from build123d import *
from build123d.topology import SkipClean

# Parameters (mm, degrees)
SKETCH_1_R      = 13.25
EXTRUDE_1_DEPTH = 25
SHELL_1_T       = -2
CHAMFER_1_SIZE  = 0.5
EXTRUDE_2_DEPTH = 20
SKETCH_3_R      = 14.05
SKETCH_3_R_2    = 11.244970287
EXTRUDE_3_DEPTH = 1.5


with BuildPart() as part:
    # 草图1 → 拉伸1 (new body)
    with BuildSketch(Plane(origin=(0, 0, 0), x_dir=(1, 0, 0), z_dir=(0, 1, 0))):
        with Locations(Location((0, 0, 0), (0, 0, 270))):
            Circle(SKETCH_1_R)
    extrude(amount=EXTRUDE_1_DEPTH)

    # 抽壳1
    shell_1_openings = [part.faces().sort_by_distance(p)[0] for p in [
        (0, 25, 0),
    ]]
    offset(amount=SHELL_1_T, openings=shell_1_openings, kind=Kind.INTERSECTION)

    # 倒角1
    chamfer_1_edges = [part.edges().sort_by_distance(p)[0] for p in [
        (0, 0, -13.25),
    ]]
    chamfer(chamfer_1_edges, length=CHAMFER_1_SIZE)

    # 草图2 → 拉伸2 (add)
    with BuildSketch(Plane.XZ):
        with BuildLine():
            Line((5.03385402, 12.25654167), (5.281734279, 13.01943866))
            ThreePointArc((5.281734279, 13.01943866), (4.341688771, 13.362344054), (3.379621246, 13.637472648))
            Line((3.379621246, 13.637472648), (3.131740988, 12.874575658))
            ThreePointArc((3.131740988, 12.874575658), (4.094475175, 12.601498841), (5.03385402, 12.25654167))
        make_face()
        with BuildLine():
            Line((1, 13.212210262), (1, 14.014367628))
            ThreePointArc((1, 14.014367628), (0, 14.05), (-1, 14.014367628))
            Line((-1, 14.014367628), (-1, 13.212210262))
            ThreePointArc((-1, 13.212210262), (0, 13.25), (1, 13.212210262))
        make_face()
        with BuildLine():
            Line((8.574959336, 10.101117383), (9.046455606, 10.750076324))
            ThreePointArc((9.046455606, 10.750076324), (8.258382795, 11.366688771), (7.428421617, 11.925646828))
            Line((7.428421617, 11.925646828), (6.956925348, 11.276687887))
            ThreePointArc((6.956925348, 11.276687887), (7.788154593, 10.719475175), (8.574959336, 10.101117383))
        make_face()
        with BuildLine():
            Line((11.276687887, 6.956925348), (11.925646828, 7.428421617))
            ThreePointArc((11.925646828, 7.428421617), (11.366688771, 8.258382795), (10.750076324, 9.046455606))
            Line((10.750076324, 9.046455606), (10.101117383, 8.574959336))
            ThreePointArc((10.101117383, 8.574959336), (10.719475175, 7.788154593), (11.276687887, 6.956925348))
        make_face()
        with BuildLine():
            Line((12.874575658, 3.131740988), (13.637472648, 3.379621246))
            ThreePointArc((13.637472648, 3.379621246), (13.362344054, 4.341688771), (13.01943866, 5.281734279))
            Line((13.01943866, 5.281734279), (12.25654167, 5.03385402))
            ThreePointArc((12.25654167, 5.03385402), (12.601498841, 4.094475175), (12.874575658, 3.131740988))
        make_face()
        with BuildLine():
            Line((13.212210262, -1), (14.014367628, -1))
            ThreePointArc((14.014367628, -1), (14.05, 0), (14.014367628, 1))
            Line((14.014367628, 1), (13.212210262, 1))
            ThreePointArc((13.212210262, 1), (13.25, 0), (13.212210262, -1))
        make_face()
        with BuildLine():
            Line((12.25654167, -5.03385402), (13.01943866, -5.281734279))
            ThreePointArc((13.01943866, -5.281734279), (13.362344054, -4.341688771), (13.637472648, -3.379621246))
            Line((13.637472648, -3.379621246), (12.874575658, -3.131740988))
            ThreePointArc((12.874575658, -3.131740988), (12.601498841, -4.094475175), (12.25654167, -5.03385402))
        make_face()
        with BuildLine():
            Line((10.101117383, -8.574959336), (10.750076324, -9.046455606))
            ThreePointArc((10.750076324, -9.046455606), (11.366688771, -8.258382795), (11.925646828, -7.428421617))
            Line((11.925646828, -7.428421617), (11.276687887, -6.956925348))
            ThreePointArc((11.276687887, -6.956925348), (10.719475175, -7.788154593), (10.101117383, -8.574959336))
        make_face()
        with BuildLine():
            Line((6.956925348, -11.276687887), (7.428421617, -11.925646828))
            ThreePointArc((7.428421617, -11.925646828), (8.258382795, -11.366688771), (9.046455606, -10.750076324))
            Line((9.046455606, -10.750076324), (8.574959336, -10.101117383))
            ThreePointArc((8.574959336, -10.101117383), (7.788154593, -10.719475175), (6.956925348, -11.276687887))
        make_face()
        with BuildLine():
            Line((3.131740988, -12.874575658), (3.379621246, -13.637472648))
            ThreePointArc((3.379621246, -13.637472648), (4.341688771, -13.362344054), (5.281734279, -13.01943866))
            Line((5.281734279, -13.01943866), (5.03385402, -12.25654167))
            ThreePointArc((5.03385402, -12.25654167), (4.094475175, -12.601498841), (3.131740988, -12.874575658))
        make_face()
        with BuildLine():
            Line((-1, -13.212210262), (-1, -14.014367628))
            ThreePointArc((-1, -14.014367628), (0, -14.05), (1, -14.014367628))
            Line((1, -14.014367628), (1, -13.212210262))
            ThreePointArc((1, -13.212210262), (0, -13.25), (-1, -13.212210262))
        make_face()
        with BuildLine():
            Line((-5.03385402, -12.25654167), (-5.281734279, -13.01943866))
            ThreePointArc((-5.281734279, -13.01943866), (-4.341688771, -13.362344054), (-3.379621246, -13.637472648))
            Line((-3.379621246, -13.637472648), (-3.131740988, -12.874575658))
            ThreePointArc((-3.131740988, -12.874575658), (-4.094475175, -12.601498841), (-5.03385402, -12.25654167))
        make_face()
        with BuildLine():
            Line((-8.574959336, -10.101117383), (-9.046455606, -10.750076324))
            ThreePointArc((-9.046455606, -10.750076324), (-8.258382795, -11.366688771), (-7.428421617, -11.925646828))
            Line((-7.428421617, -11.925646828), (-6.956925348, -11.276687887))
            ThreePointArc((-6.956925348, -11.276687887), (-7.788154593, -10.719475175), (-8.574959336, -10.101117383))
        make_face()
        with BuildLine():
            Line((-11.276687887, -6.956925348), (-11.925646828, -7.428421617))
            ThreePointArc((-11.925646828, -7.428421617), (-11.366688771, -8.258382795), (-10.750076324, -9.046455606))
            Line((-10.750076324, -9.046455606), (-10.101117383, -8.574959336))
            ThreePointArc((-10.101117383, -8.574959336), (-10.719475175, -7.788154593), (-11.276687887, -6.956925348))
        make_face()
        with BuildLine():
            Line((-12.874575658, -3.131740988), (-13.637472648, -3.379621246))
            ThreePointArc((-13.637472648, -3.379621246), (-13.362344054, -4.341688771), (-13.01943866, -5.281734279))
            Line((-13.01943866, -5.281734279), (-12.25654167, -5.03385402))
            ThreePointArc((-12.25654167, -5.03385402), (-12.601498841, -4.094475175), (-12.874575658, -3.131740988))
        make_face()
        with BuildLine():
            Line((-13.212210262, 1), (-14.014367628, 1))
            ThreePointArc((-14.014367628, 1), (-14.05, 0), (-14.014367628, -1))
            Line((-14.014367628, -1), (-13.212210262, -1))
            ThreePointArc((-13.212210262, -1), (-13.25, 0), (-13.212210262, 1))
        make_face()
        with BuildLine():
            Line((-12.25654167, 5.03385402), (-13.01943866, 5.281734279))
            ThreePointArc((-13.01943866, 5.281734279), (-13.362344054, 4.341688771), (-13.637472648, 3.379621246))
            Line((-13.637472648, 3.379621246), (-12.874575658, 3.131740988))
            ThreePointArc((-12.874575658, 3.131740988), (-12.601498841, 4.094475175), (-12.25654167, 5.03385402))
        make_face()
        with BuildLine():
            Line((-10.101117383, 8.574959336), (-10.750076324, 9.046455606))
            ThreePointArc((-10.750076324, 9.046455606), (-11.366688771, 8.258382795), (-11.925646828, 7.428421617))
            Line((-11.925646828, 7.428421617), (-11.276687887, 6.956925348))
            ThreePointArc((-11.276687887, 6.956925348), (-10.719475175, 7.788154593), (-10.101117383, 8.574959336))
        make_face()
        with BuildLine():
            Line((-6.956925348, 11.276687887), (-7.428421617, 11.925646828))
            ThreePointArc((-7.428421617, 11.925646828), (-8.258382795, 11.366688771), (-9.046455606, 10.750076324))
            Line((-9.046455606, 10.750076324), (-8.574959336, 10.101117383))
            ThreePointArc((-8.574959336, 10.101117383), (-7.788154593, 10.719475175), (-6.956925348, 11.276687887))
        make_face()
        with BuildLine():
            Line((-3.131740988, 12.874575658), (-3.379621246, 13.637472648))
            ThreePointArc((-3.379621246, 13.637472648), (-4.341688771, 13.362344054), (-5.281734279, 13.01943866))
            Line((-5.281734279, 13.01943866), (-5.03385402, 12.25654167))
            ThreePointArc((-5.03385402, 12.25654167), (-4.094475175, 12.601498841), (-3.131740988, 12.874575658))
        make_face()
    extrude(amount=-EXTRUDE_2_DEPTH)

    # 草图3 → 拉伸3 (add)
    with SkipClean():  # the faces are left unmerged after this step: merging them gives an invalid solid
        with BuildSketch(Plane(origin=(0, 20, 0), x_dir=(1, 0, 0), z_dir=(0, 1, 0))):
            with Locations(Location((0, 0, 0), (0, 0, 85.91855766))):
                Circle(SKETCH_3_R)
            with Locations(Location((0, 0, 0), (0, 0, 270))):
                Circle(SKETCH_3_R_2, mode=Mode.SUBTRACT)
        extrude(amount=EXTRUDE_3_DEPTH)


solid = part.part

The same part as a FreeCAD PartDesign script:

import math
import FreeCAD as App
import Part
import Sketcher
Q = App.Units.Quantity


def edges_at(feature, points):
    """Names of the edges that pass closest to the given points."""
    edges = feature.Shape.Edges
    near = lambda p: min(range(len(edges)), key=lambda i: edges[i].distToShape(Part.Vertex(*p))[0])
    return sorted({f"Edge{near(p) + 1}" for p in points})


def faces_at(feature, points):
    """Names of the faces that lie closest to the given points."""
    faces = feature.Shape.Faces
    near = lambda p: min(range(len(faces)), key=lambda i: faces[i].distToShape(Part.Vertex(*p))[0])
    return sorted({f"Face{near(p) + 1}" for p in points})

doc = App.newDocument("Part")
params = doc.addObject("Spreadsheet::Sheet", "Params")
for row, (alias, value) in enumerate([
    ("sketch1_diameter", "26.5 mm"),
    ("pad1_length", "25 mm"),
    ("thickness_wall", "2 mm"),
    ("chamfer_size", "0.5 mm"),
    ("sketch2_radius", "14.05 mm"),
    ("sketch2_radius2", "13.25 mm"),
    ("pad2_length", "20 mm"),
    ("sketch3_diameter", "28.1 mm"),
    ("pad3_length", "1.5 mm"),
], start=1):
    params.set(f"A{row}", alias)
    params.set(f"B{row}", "=" + value)
    params.setAlias(f"B{row}", alias)

body = doc.addObject("PartDesign::Body", "Body")

sketch1 = body.newObject("Sketcher::SketchObject", "Sketch")
sketch1.AttachmentSupport = (doc.getObject("XZ_Plane"), [""])
sketch1.MapMode = "FlatFace"
sketch1.addGeometry(Part.Circle(App.Vector(0, 0, 0), App.Vector(0, 0, 1), 13), False)
sketch1.addConstraint([
    Sketcher.Constraint("Coincident", 0, 3, -1, 1),
    Sketcher.Constraint("Diameter", 0, 26.5),
])
sketch1.setExpression("Constraints[1]", "Params.sketch1_diameter")
pad1 = body.newObject("PartDesign::Pad", "Pad")
pad1.Profile = sketch1
pad1.setExpression("Length", "Params.pad1_length")
pad1.Reversed = True
doc.recompute()

thickness = body.newObject("PartDesign::Thickness", "Thickness")
thickness.Base = (pad1, faces_at(pad1, [(0, 25, 0)]))
thickness.setExpression("Value", "Params.thickness_wall")
thickness.Reversed = True
thickness.Join = "Intersection"
doc.recompute()

chamfer = body.newObject("PartDesign::Chamfer", "Chamfer")
chamfer.Base = (thickness, edges_at(thickness, [(0, 0, -13.25)]))
chamfer.setExpression("Size", "Params.chamfer_size")

sketch2 = body.newObject("Sketcher::SketchObject", "Sketch001")
sketch2.AttachmentSupport = (doc.getObject("XZ_Plane"), [""])
sketch2.MapMode = "FlatFace"
sketch2.addGeometry([
    Part.LineSegment(App.Vector(5, 12.3, 0), App.Vector(5.3, 13, 0)),
    Part.ArcOfCircle(Part.Circle(App.Vector(0, 0, 0), App.Vector(0, 0, 1), 14.1), math.radians(67.92), math.radians(76.08)),
    Part.LineSegment(App.Vector(3.4, 13.6, 0), App.Vector(3.1, 12.9, 0)),
    Part.ArcOfCircle(Part.Circle(App.Vector(0, 0, 0), App.Vector(0, 0, 1), 13.2), math.radians(67.67), math.radians(76.33)),
    Part.LineSegment(App.Vector(1, 13.2, 0), App.Vector(1, 14, 0)),
    Part.ArcOfCircle(Part.Circle(App.Vector(0, 0, 0), App.Vector(0, 0, 1), 14.1), math.radians(85.92), math.radians(94.08)),
    Part.LineSegment(App.Vector(-1, 14, 0), App.Vector(-1, 13.2, 0)),
    Part.ArcOfCircle(Part.Circle(App.Vector(0, 0, 0), App.Vector(0, 0, 1), 13.3), math.radians(85.67), math.radians(94.33)),
    Part.LineSegment(App.Vector(8.6, 10.1, 0), App.Vector(9, 10.8, 0)),
    Part.ArcOfCircle(Part.Circle(App.Vector(0, 0, 0), App.Vector(0, 0, 1), 14), math.radians(49.92), math.radians(58.08)),
    Part.LineSegment(App.Vector(7.4, 11.9, 0), App.Vector(7, 11.3, 0)),
    Part.ArcOfCircle(Part.Circle(App.Vector(0, 0, 0), App.Vector(0, 0, 1), 13.3), math.radians(49.67), math.radians(58.33)),
    Part.LineSegment(App.Vector(11.3, 7, 0), App.Vector(11.9, 7.4, 0)),
    Part.ArcOfCircle(Part.Circle(App.Vector(0, 0, 0), App.Vector(0, 0, 1), 14), math.radians(31.92), math.radians(40.08)),
    Part.LineSegment(App.Vector(10.8, 9, 0), App.Vector(10.1, 8.6, 0)),
    Part.ArcOfCircle(Part.Circle(App.Vector(0, 0, 0), App.Vector(0, 0, 1), 13.3), math.radians(31.67), math.radians(40.33)),
    Part.LineSegment(App.Vector(12.9, 3.1, 0), App.Vector(13.6, 3.4, 0)),
    Part.ArcOfCircle(Part.Circle(App.Vector(0, 0, 0), App.Vector(0, 0, 1), 14.1), math.radians(13.92), math.radians(22.08)),
    Part.LineSegment(App.Vector(13, 5.3, 0), App.Vector(12.3, 5, 0)),
    Part.ArcOfCircle(Part.Circle(App.Vector(0, 0, 0), App.Vector(0, 0, 1), 13.2), math.radians(13.67), math.radians(22.33)),
    Part.LineSegment(App.Vector(13.2, -1, 0), App.Vector(14, -1, 0)),
    Part.ArcOfCircle(Part.Circle(App.Vector(0, 0, 0), App.Vector(0, 0, 1), 14.1), math.radians(-4.08), math.radians(4.08)),
    Part.LineSegment(App.Vector(14, 1, 0), App.Vector(13.2, 1, 0)),
    Part.ArcOfCircle(Part.Circle(App.Vector(0, 0, 0), App.Vector(0, 0, 1), 13.3), math.radians(-4.33), math.radians(4.33)),
    Part.LineSegment(App.Vector(12.3, -5, 0), App.Vector(13, -5.3, 0)),
    Part.ArcOfCircle(Part.Circle(App.Vector(0, 0, 0), App.Vector(0, 0, 1), 14.1), math.radians(-22.08), math.radians(-13.92)),
    Part.LineSegment(App.Vector(13.6, -3.4, 0), App.Vector(12.9, -3.1, 0)),
    Part.ArcOfCircle(Part.Circle(App.Vector(0, 0, 0), App.Vector(0, 0, 1), 13.2), math.radians(-22.33), math.radians(-13.67)),
    Part.LineSegment(App.Vector(10.1, -8.6, 0), App.Vector(10.8, -9, 0)),
    Part.ArcOfCircle(Part.Circle(App.Vector(0, 0, 0), App.Vector(0, 0, 1), 14), math.radians(-40.08), math.radians(-31.92)),
    Part.LineSegment(App.Vector(11.9, -7.4, 0), App.Vector(11.3, -7, 0)),
    Part.ArcOfCircle(Part.Circle(App.Vector(0, 0, 0), App.Vector(0, 0, 1), 13.3), math.radians(-40.33), math.radians(-31.67)),
    Part.LineSegment(App.Vector(7, -11.3, 0), App.Vector(7.4, -11.9, 0)),
    Part.ArcOfCircle(Part.Circle(App.Vector(0, 0, 0), App.Vector(0, 0, 1), 14), math.radians(-58.08), math.radians(-49.92)),
    Part.LineSegment(App.Vector(9, -10.8, 0), App.Vector(8.6, -10.1, 0)),
    Part.ArcOfCircle(Part.Circle(App.Vector(0, 0, 0), App.Vector(0, 0, 1), 13.3), math.radians(-58.33), math.radians(-49.67)),
    Part.LineSegment(App.Vector(3.1, -12.9, 0), App.Vector(3.4, -13.6, 0)),
    Part.ArcOfCircle(Part.Circle(App.Vector(0, 0, 0), App.Vector(0, 0, 1), 14.1), math.radians(-76.08), math.radians(-67.92)),
    Part.LineSegment(App.Vector(5.3, -13, 0), App.Vector(5, -12.3, 0)),
    Part.ArcOfCircle(Part.Circle(App.Vector(0, 0, 0), App.Vector(0, 0, 1), 13.2), math.radians(-76.33), math.radians(-67.67)),
    Part.LineSegment(App.Vector(-1, -13.2, 0), App.Vector(-1, -14, 0)),
    Part.ArcOfCircle(Part.Circle(App.Vector(0, 0, 0), App.Vector(0, 0, 1), 14.1), math.radians(-94.08), math.radians(-85.92)),
    Part.LineSegment(App.Vector(1, -14, 0), App.Vector(1, -13.2, 0)),
    Part.ArcOfCircle(Part.Circle(App.Vector(0, 0, 0), App.Vector(0, 0, 1), 13.3), math.radians(-94.33), math.radians(-85.67)),
    Part.LineSegment(App.Vector(-5, -12.3, 0), App.Vector(-5.3, -13, 0)),
    Part.ArcOfCircle(Part.Circle(App.Vector(0, 0, 0), App.Vector(0, 0, 1), 14.1), math.radians(-112.08), math.radians(-103.92)),
    Part.LineSegment(App.Vector(-3.4, -13.6, 0), App.Vector(-3.1, -12.9, 0)),
    Part.ArcOfCircle(Part.Circle(App.Vector(0, 0, 0), App.Vector(0, 0, 1), 13.2), math.radians(-112.33), math.radians(-103.67)),
    Part.LineSegment(App.Vector(-8.6, -10.1, 0), App.Vector(-9, -10.8, 0)),
    Part.ArcOfCircle(Part.Circle(App.Vector(0, 0, 0), App.Vector(0, 0, 1), 14), math.radians(-130.08), math.radians(-121.92)),
    Part.LineSegment(App.Vector(-7.4, -11.9, 0), App.Vector(-7, -11.3, 0)),
    Part.ArcOfCircle(Part.Circle(App.Vector(0, 0, 0), App.Vector(0, 0, 1), 13.3), math.radians(-130.33), math.radians(-121.67)),
    Part.LineSegment(App.Vector(-11.3, -7, 0), App.Vector(-11.9, -7.4, 0)),
    Part.ArcOfCircle(Part.Circle(App.Vector(0, 0, 0), App.Vector(0, 0, 1), 14), math.radians(-148.08), math.radians(-139.92)),
    Part.LineSegment(App.Vector(-10.8, -9, 0), App.Vector(-10.1, -8.6, 0)),
    Part.ArcOfCircle(Part.Circle(App.Vector(0, 0, 0), App.Vector(0, 0, 1), 13.3), math.radians(-148.33), math.radians(-139.67)),
    Part.LineSegment(App.Vector(-12.9, -3.1, 0), App.Vector(-13.6, -3.4, 0)),
    Part.ArcOfCircle(Part.Circle(App.Vector(0, 0, 0), App.Vector(0, 0, 1), 14.1), math.radians(-166.08), math.radians(-157.92)),
    Part.LineSegment(App.Vector(-13, -5.3, 0), App.Vector(-12.3, -5, 0)),
    Part.ArcOfCircle(Part.Circle(App.Vector(0, 0, 0), App.Vector(0, 0, 1), 13.2), math.radians(-166.33), math.radians(-157.67)),
    Part.LineSegment(App.Vector(-13.2, 1, 0), App.Vector(-14, 1, 0)),
    Part.ArcOfCircle(Part.Circle(App.Vector(0, 0, 0), App.Vector(0, 0, 1), 14.1), math.radians(175.92), math.radians(184.08)),
    Part.LineSegment(App.Vector(-14, -1, 0), App.Vector(-13.2, -1, 0)),
    Part.ArcOfCircle(Part.Circle(App.Vector(0, 0, 0), App.Vector(0, 0, 1), 13.3), math.radians(175.67), math.radians(184.33)),
    Part.LineSegment(App.Vector(-12.3, 5, 0), App.Vector(-13, 5.3, 0)),
    Part.ArcOfCircle(Part.Circle(App.Vector(0, 0, 0), App.Vector(0, 0, 1), 14.1), math.radians(157.92), math.radians(166.08)),
    Part.LineSegment(App.Vector(-13.6, 3.4, 0), App.Vector(-12.9, 3.1, 0)),
    Part.ArcOfCircle(Part.Circle(App.Vector(0, 0, 0), App.Vector(0, 0, 1), 13.2), math.radians(157.67), math.radians(166.33)),
    Part.LineSegment(App.Vector(-10.1, 8.6, 0), App.Vector(-10.8, 9, 0)),
    Part.ArcOfCircle(Part.Circle(App.Vector(0, 0, 0), App.Vector(0, 0, 1), 14), math.radians(139.92), math.radians(148.08)),
    Part.LineSegment(App.Vector(-11.9, 7.4, 0), App.Vector(-11.3, 7, 0)),
    Part.ArcOfCircle(Part.Circle(App.Vector(0, 0, 0), App.Vector(0, 0, 1), 13.3), math.radians(139.67), math.radians(148.33)),
    Part.LineSegment(App.Vector(-7, 11.3, 0), App.Vector(-7.4, 11.9, 0)),
    Part.ArcOfCircle(Part.Circle(App.Vector(0, 0, 0), App.Vector(0, 0, 1), 14), math.radians(121.92), math.radians(130.08)),
    Part.LineSegment(App.Vector(-9, 10.8, 0), App.Vector(-8.6, 10.1, 0)),
    Part.ArcOfCircle(Part.Circle(App.Vector(0, 0, 0), App.Vector(0, 0, 1), 13.3), math.radians(121.67), math.radians(130.33)),
    Part.LineSegment(App.Vector(-3.1, 12.9, 0), App.Vector(-3.4, 13.6, 0)),
    Part.ArcOfCircle(Part.Circle(App.Vector(0, 0, 0), App.Vector(0, 0, 1), 14.1), math.radians(103.92), math.radians(112.08)),
    Part.LineSegment(App.Vector(-5.3, 13, 0), App.Vector(-5, 12.3, 0)),
    Part.ArcOfCircle(Part.Circle(App.Vector(0, 0, 0), App.Vector(0, 0, 1), 13.2), math.radians(103.67), math.radians(112.33)),
], False)
sketch2.addConstraint([
    Sketcher.Constraint("Coincident", 0, 2, 1, 1),
    Sketcher.Constraint("Coincident", 1, 2, 2, 1),
    Sketcher.Constraint("Coincident", 2, 2, 3, 2),
    Sketcher.Constraint("Coincident", 3, 1, 0, 1),
    Sketcher.Constraint("Coincident", 4, 2, 5, 1),
    Sketcher.Constraint("Coincident", 5, 2, 6, 1),
    Sketcher.Constraint("Coincident", 6, 2, 7, 2),
    Sketcher.Constraint("Coincident", 7, 1, 4, 1),
    Sketcher.Constraint("Coincident", 8, 2, 9, 1),
    Sketcher.Constraint("Coincident", 9, 2, 10, 1),
    Sketcher.Constraint("Coincident", 10, 2, 11, 2),
    Sketcher.Constraint("Coincident", 11, 1, 8, 1),
    Sketcher.Constraint("Coincident", 12, 2, 13, 1),
    Sketcher.Constraint("Coincident", 13, 2, 14, 1),
    Sketcher.Constraint("Coincident", 14, 2, 15, 2),
    Sketcher.Constraint("Coincident", 15, 1, 12, 1),
    Sketcher.Constraint("Coincident", 16, 2, 17, 1),
    Sketcher.Constraint("Coincident", 17, 2, 18, 1),
    Sketcher.Constraint("Coincident", 18, 2, 19, 2),
    Sketcher.Constraint("Coincident", 19, 1, 16, 1),
    Sketcher.Constraint("Coincident", 20, 2, 21, 1),
    Sketcher.Constraint("Coincident", 21, 2, 22, 1),
    Sketcher.Constraint("Coincident", 22, 2, 23, 2),
    Sketcher.Constraint("Coincident", 23, 1, 20, 1),
    Sketcher.Constraint("Coincident", 24, 2, 25, 1),
    Sketcher.Constraint("Coincident", 25, 2, 26, 1),
    Sketcher.Constraint("Coincident", 26, 2, 27, 2),
    Sketcher.Constraint("Coincident", 27, 1, 24, 1),
    Sketcher.Constraint("Coincident", 28, 2, 29, 1),
    Sketcher.Constraint("Coincident", 29, 2, 30, 1),
    Sketcher.Constraint("Coincident", 30, 2, 31, 2),
    Sketcher.Constraint("Coincident", 31, 1, 28, 1),
    Sketcher.Constraint("Coincident", 32, 2, 33, 1),
    Sketcher.Constraint("Coincident", 33, 2, 34, 1),
    Sketcher.Constraint("Coincident", 34, 2, 35, 2),
    Sketcher.Constraint("Coincident", 35, 1, 32, 1),
    Sketcher.Constraint("Coincident", 36, 2, 37, 1),
    Sketcher.Constraint("Coincident", 37, 2, 38, 1),
    Sketcher.Constraint("Coincident", 38, 2, 39, 2),
    Sketcher.Constraint("Coincident", 39, 1, 36, 1),
    Sketcher.Constraint("Coincident", 40, 2, 41, 1),
    Sketcher.Constraint("Coincident", 41, 2, 42, 1),
    Sketcher.Constraint("Coincident", 42, 2, 43, 2),
    Sketcher.Constraint("Coincident", 43, 1, 40, 1),
    Sketcher.Constraint("Coincident", 44, 2, 45, 1),
    Sketcher.Constraint("Coincident", 45, 2, 46, 1),
    Sketcher.Constraint("Coincident", 46, 2, 47, 2),
    Sketcher.Constraint("Coincident", 47, 1, 44, 1),
    Sketcher.Constraint("Coincident", 48, 2, 49, 1),
    Sketcher.Constraint("Coincident", 49, 2, 50, 1),
    Sketcher.Constraint("Coincident", 50, 2, 51, 2),
    Sketcher.Constraint("Coincident", 51, 1, 48, 1),
    Sketcher.Constraint("Coincident", 52, 2, 53, 1),
    Sketcher.Constraint("Coincident", 53, 2, 54, 1),
    Sketcher.Constraint("Coincident", 54, 2, 55, 2),
    Sketcher.Constraint("Coincident", 55, 1, 52, 1),
    Sketcher.Constraint("Coincident", 56, 2, 57, 1),
    Sketcher.Constraint("Coincident", 57, 2, 58, 1),
    Sketcher.Constraint("Coincident", 58, 2, 59, 2),
    Sketcher.Constraint("Coincident", 59, 1, 56, 1),
    Sketcher.Constraint("Coincident", 60, 2, 61, 1),
    Sketcher.Constraint("Coincident", 61, 2, 62, 1),
    Sketcher.Constraint("Coincident", 62, 2, 63, 2),
    Sketcher.Constraint("Coincident", 63, 1, 60, 1),
    Sketcher.Constraint("Coincident", 64, 2, 65, 1),
    Sketcher.Constraint("Coincident", 65, 2, 66, 1),
    Sketcher.Constraint("Coincident", 66, 2, 67, 2),
    Sketcher.Constraint("Coincident", 67, 1, 64, 1),
    Sketcher.Constraint("Coincident", 68, 2, 69, 1),
    Sketcher.Constraint("Coincident", 69, 2, 70, 1),
    Sketcher.Constraint("Coincident", 70, 2, 71, 2),
    Sketcher.Constraint("Coincident", 71, 1, 68, 1),
    Sketcher.Constraint("Coincident", 72, 2, 73, 1),
    Sketcher.Constraint("Coincident", 73, 2, 74, 1),
    Sketcher.Constraint("Coincident", 74, 2, 75, 2),
    Sketcher.Constraint("Coincident", 75, 1, 72, 1),
    Sketcher.Constraint("Coincident", 76, 2, 77, 1),
    Sketcher.Constraint("Coincident", 77, 2, 78, 1),
    Sketcher.Constraint("Coincident", 78, 2, 79, 2),
    Sketcher.Constraint("Coincident", 79, 1, 76, 1),
    Sketcher.Constraint("Vertical", 4),
    Sketcher.Constraint("Vertical", 6),
    Sketcher.Constraint("Horizontal", 20),
    Sketcher.Constraint("Horizontal", 22),
    Sketcher.Constraint("Vertical", 40),
    Sketcher.Constraint("Vertical", 42),
    Sketcher.Constraint("Horizontal", 60),
    Sketcher.Constraint("Horizontal", 62),
    Sketcher.Constraint("Coincident", 1, 3, -1, 1),
    Sketcher.Constraint("Coincident", 3, 3, -1, 1),
    Sketcher.Constraint("Coincident", 5, 3, -1, 1),
    Sketcher.Constraint("Coincident", 7, 3, -1, 1),
    Sketcher.Constraint("Coincident", 9, 3, -1, 1),
    Sketcher.Constraint("Coincident", 11, 3, -1, 1),
    Sketcher.Constraint("Coincident", 13, 3, -1, 1),
    Sketcher.Constraint("Coincident", 15, 3, -1, 1),
    Sketcher.Constraint("Coincident", 17, 3, -1, 1),
    Sketcher.Constraint("Coincident", 19, 3, -1, 1),
    Sketcher.Constraint("Coincident", 21, 3, -1, 1),
    Sketcher.Constraint("Coincident", 23, 3, -1, 1),
    Sketcher.Constraint("Coincident", 25, 3, -1, 1),
    Sketcher.Constraint("Coincident", 27, 3, -1, 1),
    Sketcher.Constraint("Coincident", 29, 3, -1, 1),
    Sketcher.Constraint("Coincident", 31, 3, -1, 1),
    Sketcher.Constraint("Coincident", 33, 3, -1, 1),
    Sketcher.Constraint("Coincident", 35, 3, -1, 1),
    Sketcher.Constraint("Coincident", 37, 3, -1, 1),
    Sketcher.Constraint("Coincident", 39, 3, -1, 1),
    Sketcher.Constraint("Coincident", 41, 3, -1, 1),
    Sketcher.Constraint("Coincident", 43, 3, -1, 1),
    Sketcher.Constraint("Coincident", 45, 3, -1, 1),
    Sketcher.Constraint("Coincident", 47, 3, -1, 1),
    Sketcher.Constraint("Coincident", 49, 3, -1, 1),
    Sketcher.Constraint("Coincident", 51, 3, -1, 1),
    Sketcher.Constraint("Coincident", 53, 3, -1, 1),
    Sketcher.Constraint("Coincident", 55, 3, -1, 1),
    Sketcher.Constraint("Coincident", 57, 3, -1, 1),
    Sketcher.Constraint("Coincident", 59, 3, -1, 1),
    Sketcher.Constraint("Coincident", 61, 3, -1, 1),
    Sketcher.Constraint("Coincident", 63, 3, -1, 1),
    Sketcher.Constraint("Coincident", 65, 3, -1, 1),
    Sketcher.Constraint("Coincident", 67, 3, -1, 1),
    Sketcher.Constraint("Coincident", 69, 3, -1, 1),
    Sketcher.Constraint("Coincident", 71, 3, -1, 1),
    Sketcher.Constraint("Coincident", 73, 3, -1, 1),
    Sketcher.Constraint("Coincident", 75, 3, -1, 1),
    Sketcher.Constraint("Coincident", 77, 3, -1, 1),
    Sketcher.Constraint("Coincident", 79, 3, -1, 1),
    Sketcher.Constraint("Equal", 1, 5),
    Sketcher.Constraint("Equal", 3, 7),
    Sketcher.Constraint("Equal", 5, 9),
    Sketcher.Constraint("Equal", 7, 11),
    Sketcher.Constraint("Equal", 9, 13),
    Sketcher.Constraint("Equal", 11, 15),
    Sketcher.Constraint("Equal", 13, 17),
    Sketcher.Constraint("Equal", 15, 19),
    Sketcher.Constraint("Equal", 17, 21),
    Sketcher.Constraint("Equal", 19, 23),
    Sketcher.Constraint("Equal", 21, 25),
    Sketcher.Constraint("Equal", 23, 27),
    Sketcher.Constraint("Equal", 25, 29),
    Sketcher.Constraint("Equal", 27, 31),
    Sketcher.Constraint("Equal", 29, 33),
    Sketcher.Constraint("Equal", 31, 35),
    Sketcher.Constraint("Equal", 33, 37),
    Sketcher.Constraint("Equal", 35, 39),
    Sketcher.Constraint("Equal", 37, 41),
    Sketcher.Constraint("Equal", 39, 43),
    Sketcher.Constraint("Equal", 41, 45),
    Sketcher.Constraint("Equal", 43, 47),
    Sketcher.Constraint("Equal", 45, 49),
    Sketcher.Constraint("Equal", 47, 51),
    Sketcher.Constraint("Equal", 49, 53),
    Sketcher.Constraint("Equal", 51, 55),
    Sketcher.Constraint("Equal", 53, 57),
    Sketcher.Constraint("Equal", 55, 59),
    Sketcher.Constraint("Equal", 57, 61),
    Sketcher.Constraint("Equal", 59, 63),
    Sketcher.Constraint("Equal", 61, 65),
    Sketcher.Constraint("Equal", 63, 67),
    Sketcher.Constraint("Equal", 65, 69),
    Sketcher.Constraint("Equal", 67, 71),
    Sketcher.Constraint("Equal", 69, 73),
    Sketcher.Constraint("Equal", 71, 75),
    Sketcher.Constraint("Equal", 73, 77),
    Sketcher.Constraint("Equal", 75, 79),
    Sketcher.Constraint("Parallel", 0, 2),
    Sketcher.Constraint("Parallel", 8, 10),
    Sketcher.Constraint("Parallel", 12, 14),
    Sketcher.Constraint("Parallel", 16, 18),
    Sketcher.Constraint("Perpendicular", 2, 24),
    Sketcher.Constraint("Parallel", 24, 26),
    Sketcher.Constraint("Perpendicular", 10, 28),
    Sketcher.Constraint("Parallel", 28, 30),
    Sketcher.Constraint("Perpendicular", 14, 32),
    Sketcher.Constraint("Parallel", 32, 34),
    Sketcher.Constraint("Perpendicular", 18, 36),
    Sketcher.Constraint("Parallel", 36, 38),
    Sketcher.Constraint("Perpendicular", 26, 44),
    Sketcher.Constraint("Parallel", 44, 46),
    Sketcher.Constraint("Perpendicular", 30, 48),
    Sketcher.Constraint("Parallel", 48, 50),
    Sketcher.Constraint("Perpendicular", 34, 52),
    Sketcher.Constraint("Parallel", 52, 54),
    Sketcher.Constraint("Perpendicular", 38, 56),
    Sketcher.Constraint("Parallel", 56, 58),
    Sketcher.Constraint("Perpendicular", 46, 64),
    Sketcher.Constraint("Parallel", 64, 66),
    Sketcher.Constraint("Perpendicular", 50, 68),
    Sketcher.Constraint("Parallel", 68, 70),
    Sketcher.Constraint("Perpendicular", 54, 72),
    Sketcher.Constraint("Parallel", 72, 74),
    Sketcher.Constraint("Perpendicular", 58, 76),
    Sketcher.Constraint("Parallel", 76, 78),
    Sketcher.Constraint("Horizontal", 4, 2, 5, 2),
    Sketcher.Constraint("Horizontal", 40, 2, 41, 2),
    Sketcher.Constraint("Horizontal", 37, 2, 44, 2),
    Sketcher.Constraint("Horizontal", 36, 2, 45, 2),
    Sketcher.Constraint("Horizontal", 39, 1, 46, 2),
    Sketcher.Constraint("Horizontal", 33, 2, 48, 2),
    Sketcher.Constraint("Horizontal", 32, 2, 49, 2),
    Sketcher.Constraint("Horizontal", 35, 1, 50, 2),
    Sketcher.Constraint("Horizontal", 29, 2, 52, 2),
    Sketcher.Constraint("Horizontal", 28, 2, 53, 2),
    Sketcher.Constraint("Horizontal", 25, 2, 56, 2),
    Sketcher.Constraint("Horizontal", 24, 2, 57, 2),
    Sketcher.Constraint("Horizontal", 22, 2, 60, 2),
    Sketcher.Constraint("Horizontal", 23, 1, 61, 2),
    Sketcher.Constraint("Horizontal", 17, 2, 64, 2),
    Sketcher.Constraint("Horizontal", 16, 2, 65, 2),
    Sketcher.Constraint("Horizontal", 13, 2, 68, 2),
    Sketcher.Constraint("Horizontal", 12, 2, 69, 2),
    Sketcher.Constraint("Horizontal", 9, 2, 72, 2),
    Sketcher.Constraint("Horizontal", 8, 2, 73, 2),
    Sketcher.Constraint("Horizontal", 1, 2, 76, 2),
    Sketcher.Constraint("Horizontal", 0, 2, 77, 2),
    Sketcher.Constraint("Vertical", 20, 2, 21, 2),
    Sketcher.Constraint("Vertical", 17, 2, 24, 2),
    Sketcher.Constraint("Vertical", 16, 2, 25, 2),
    Sketcher.Constraint("Vertical", 13, 2, 28, 2),
    Sketcher.Constraint("Vertical", 12, 2, 29, 2),
    Sketcher.Constraint("Vertical", 9, 2, 32, 2),
    Sketcher.Constraint("Vertical", 8, 2, 33, 2),
    Sketcher.Constraint("Vertical", 1, 2, 36, 2),
    Sketcher.Constraint("Vertical", 0, 2, 37, 2),
    Sketcher.Constraint("Vertical", 6, 2, 40, 2),
    Sketcher.Constraint("Equal", 0, 2),
    Sketcher.Constraint("Equal", 2, 8),
    Sketcher.Constraint("Equal", 12, 14),
    Sketcher.Constraint("Angle", 0, Q("72 deg")),
    Sketcher.Constraint("Angle", 8, Q("54 deg")),
    Sketcher.Constraint("Radius", 1, 14.05),
    Sketcher.Constraint("Radius", 3, 13.25),
    Sketcher.Constraint("DistanceX", -1, 1, 4, 2, 1.0),
    Sketcher.Constraint("DistanceY", 20, 2, -1, 1, 1.0),
    Sketcher.Constraint("DistanceY", -1, 1, 0, 2, 13.019439),
    Sketcher.Constraint("DistanceX", -1, 1, 9, 2, 7.428422),
    Sketcher.Constraint("DistanceY", -1, 1, 12, 2, 7.428422),
    Sketcher.Constraint("DistanceY", -1, 1, 16, 2, 3.379621),
    Sketcher.Constraint("DistanceX", -1, 1, 17, 2, 13.019439),
])
sketch2.setExpression("Constraints[231]", "Params.sketch2_radius")
sketch2.setExpression("Constraints[232]", "Params.sketch2_radius2")
pad2 = body.newObject("PartDesign::Pad", "Pad001")
pad2.Profile = sketch2
pad2.setExpression("Length", "Params.pad2_length")
pad2.Reversed = True

sketch3 = body.newObject("Sketcher::SketchObject", "Sketch002")
sketch3.AttachmentSupport = (doc.getObject("XZ_Plane"), [""])
sketch3.MapMode = "FlatFace"
sketch3.AttachmentOffset = App.Placement(App.Vector(0, 0, -20), App.Rotation())
sketch3.addGeometry([
    Part.Circle(App.Vector(0, 0, 0), App.Vector(0, 0, 1), 14),
    Part.Circle(App.Vector(0, 0, 0), App.Vector(0, 0, 1), 11),
], False)
sketch3.addConstraint([
    Sketcher.Constraint("Coincident", 0, 3, -1, 1),
    Sketcher.Constraint("Coincident", 1, 3, -1, 1),
    Sketcher.Constraint("Diameter", 0, 28.1),
    Sketcher.Constraint("Diameter", 1, 22.489941),
])
sketch3.setExpression("Constraints[2]", "Params.sketch3_diameter")
pad3 = body.newObject("PartDesign::Pad", "Pad002")
pad3.Profile = sketch3
pad3.setExpression("Length", "Params.pad3_length")
pad3.Reversed = True

doc.recompute()
